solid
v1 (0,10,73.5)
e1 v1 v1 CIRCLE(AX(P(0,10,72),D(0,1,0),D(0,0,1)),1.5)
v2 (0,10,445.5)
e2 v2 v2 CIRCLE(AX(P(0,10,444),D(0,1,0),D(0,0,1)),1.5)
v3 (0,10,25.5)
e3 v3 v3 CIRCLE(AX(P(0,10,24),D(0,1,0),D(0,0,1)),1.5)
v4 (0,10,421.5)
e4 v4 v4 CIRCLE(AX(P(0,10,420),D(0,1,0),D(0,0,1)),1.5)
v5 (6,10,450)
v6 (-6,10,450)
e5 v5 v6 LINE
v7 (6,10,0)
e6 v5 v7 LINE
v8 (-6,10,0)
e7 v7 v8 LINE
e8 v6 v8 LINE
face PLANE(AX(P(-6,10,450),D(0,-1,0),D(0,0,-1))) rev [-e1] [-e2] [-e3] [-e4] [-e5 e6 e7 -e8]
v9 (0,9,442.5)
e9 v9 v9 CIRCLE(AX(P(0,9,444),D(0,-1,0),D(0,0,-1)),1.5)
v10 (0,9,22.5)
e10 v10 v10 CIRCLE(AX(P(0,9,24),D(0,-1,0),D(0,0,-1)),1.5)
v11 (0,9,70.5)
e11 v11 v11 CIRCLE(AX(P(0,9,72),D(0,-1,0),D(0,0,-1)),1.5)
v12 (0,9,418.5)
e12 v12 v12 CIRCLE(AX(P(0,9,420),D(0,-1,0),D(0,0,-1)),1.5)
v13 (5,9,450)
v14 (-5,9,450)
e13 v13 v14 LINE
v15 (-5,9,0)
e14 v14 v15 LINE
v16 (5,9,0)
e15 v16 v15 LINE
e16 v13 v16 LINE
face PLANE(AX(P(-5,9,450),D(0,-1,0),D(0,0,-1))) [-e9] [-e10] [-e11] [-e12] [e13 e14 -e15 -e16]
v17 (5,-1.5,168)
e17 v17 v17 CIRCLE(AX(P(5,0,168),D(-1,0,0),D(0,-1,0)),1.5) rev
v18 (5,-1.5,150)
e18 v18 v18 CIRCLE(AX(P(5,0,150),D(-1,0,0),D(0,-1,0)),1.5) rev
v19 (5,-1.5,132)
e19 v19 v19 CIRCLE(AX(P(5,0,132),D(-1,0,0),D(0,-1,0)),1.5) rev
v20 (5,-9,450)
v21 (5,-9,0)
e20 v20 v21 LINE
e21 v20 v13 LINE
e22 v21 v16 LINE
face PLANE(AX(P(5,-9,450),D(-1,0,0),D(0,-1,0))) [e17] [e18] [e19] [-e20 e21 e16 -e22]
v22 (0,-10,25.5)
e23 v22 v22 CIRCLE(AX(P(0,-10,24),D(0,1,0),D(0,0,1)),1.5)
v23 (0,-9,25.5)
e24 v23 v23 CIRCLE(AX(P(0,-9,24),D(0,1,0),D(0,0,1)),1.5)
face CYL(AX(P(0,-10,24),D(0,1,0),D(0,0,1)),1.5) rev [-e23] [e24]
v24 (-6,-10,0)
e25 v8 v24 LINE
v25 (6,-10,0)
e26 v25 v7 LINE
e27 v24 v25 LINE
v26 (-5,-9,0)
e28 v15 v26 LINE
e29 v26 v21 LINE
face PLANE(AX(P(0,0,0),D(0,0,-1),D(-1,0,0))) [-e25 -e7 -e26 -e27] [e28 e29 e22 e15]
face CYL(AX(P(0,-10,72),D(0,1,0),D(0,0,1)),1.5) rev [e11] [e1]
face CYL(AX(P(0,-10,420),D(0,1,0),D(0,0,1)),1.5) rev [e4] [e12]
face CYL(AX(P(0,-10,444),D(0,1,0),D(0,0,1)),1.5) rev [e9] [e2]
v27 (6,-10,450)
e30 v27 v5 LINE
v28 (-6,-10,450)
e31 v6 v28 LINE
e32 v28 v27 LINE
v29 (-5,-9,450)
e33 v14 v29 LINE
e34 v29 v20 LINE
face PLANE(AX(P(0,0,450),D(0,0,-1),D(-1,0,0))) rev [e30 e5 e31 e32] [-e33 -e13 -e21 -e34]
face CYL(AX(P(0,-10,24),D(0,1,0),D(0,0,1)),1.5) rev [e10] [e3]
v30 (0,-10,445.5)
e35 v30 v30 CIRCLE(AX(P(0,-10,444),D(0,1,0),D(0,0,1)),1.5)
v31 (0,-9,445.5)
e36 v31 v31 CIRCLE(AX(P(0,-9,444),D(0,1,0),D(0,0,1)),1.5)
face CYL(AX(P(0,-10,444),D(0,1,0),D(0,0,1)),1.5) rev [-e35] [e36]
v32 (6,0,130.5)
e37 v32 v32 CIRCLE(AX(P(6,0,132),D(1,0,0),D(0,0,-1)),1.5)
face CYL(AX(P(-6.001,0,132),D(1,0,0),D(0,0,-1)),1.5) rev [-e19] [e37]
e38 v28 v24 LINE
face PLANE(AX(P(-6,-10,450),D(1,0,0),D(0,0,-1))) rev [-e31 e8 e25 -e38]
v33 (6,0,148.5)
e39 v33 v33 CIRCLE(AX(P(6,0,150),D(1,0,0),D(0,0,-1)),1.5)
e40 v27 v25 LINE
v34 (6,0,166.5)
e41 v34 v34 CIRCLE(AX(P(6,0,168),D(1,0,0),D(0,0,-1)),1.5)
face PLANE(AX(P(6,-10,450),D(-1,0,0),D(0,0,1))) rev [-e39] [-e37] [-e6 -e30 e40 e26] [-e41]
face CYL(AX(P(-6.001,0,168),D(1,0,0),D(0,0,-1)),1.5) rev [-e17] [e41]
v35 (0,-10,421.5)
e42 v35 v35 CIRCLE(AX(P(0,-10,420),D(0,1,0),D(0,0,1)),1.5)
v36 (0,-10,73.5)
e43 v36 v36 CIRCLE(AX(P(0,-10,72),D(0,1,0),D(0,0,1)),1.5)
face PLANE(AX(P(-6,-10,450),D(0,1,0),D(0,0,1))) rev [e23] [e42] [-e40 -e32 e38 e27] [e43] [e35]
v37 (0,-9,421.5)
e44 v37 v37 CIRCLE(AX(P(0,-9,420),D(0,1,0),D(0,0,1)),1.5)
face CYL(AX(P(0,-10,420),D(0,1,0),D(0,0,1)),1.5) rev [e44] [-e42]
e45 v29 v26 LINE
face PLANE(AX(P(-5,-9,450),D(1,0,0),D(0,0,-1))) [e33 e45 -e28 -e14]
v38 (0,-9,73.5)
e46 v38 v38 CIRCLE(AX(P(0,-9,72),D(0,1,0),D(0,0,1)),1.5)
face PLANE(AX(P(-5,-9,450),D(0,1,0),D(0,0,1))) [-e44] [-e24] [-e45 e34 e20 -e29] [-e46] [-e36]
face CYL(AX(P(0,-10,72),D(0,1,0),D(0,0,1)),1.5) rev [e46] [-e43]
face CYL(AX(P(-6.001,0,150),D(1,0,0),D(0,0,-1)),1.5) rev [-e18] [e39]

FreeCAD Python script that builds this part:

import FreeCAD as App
import Part
import Sketcher

V = App.Vector
Q = App.Units.Quantity

doc = App.newDocument("Part")
body = doc.addObject("PartDesign::Body", "Body")

# Sketch on XY plane
sketch1 = body.newObject("Sketcher::SketchObject", "Sketch")
sketch1.AttachmentSupport = (doc.getObject("XY_Plane"), [""])
sketch1.MapMode = "FlatFace"
sketch1.addGeometry([
    Part.LineSegment(V(-6, 10, 0), V(-6, -10, 0)),  # 0
    Part.LineSegment(V(-6, -10, 0), V(6, -10, 0)),  # 1
    Part.LineSegment(V(6, -10, 0), V(6, 10, 0)),  # 2
    Part.LineSegment(V(6, 10, 0), V(-6, 10, 0)),  # 3
    Part.LineSegment(V(5, -9, 0), V(-5, -9, 0)),  # 4
    Part.LineSegment(V(-5, -9, 0), V(-5, 9, 0)),  # 5
    Part.LineSegment(V(-5, 9, 0), V(5, 9, 0)),  # 6
    Part.LineSegment(V(5, 9, 0), V(5, -9, 0)),  # 7
], False)
sketch1.addConstraint([
    Sketcher.Constraint("Coincident", 0, 2, 1, 1),
    Sketcher.Constraint("Coincident", 1, 2, 2, 1),
    Sketcher.Constraint("Coincident", 2, 2, 3, 1),
    Sketcher.Constraint("Coincident", 3, 2, 0, 1),
    Sketcher.Constraint("Coincident", 4, 2, 5, 1),
    Sketcher.Constraint("Coincident", 5, 2, 6, 1),
    Sketcher.Constraint("Coincident", 6, 2, 7, 1),
    Sketcher.Constraint("Coincident", 7, 2, 4, 1),
    Sketcher.Constraint("Vertical", 0),
    Sketcher.Constraint("Horizontal", 1),
    Sketcher.Constraint("Vertical", 2),
    Sketcher.Constraint("Horizontal", 3),
    Sketcher.Constraint("Horizontal", 4),
    Sketcher.Constraint("Vertical", 5),
    Sketcher.Constraint("Horizontal", 6),
    Sketcher.Constraint("Vertical", 7),
    Sketcher.Constraint("Symmetric", 0, 2, 2, 2, -1, 1),
    Sketcher.Constraint("Symmetric", 4, 2, 6, 2, -1, 1),
    Sketcher.Constraint("DistanceX", 1, 1, 1, 2, Q("12 mm")),
    Sketcher.Constraint("DistanceX", 4, 2, 4, 1, Q("10 mm")),
    Sketcher.Constraint("DistanceY", 0, 2, 0, 1, Q("20 mm")),
    Sketcher.Constraint("DistanceY", 5, 1, 5, 2, Q("18 mm")),
])
pad1 = body.newObject("PartDesign::Pad", "Pad")
pad1.Profile = sketch1
pad1.Length = 450

# Sketch on YZ plane
sketch2 = body.newObject("Sketcher::SketchObject", "Sketch001")
sketch2.AttachmentSupport = (doc.getObject("YZ_Plane"), [""])
sketch2.MapMode = "FlatFace"
sketch2.AttachmentOffset = App.Placement(V(0, 0, 6), App.Rotation())
sketch2.addGeometry(Part.Circle(V(0, 168, 0), V(0, 0, 1), 1.5), False)
sketch2.addConstraint([
    Sketcher.Constraint("PointOnObject", 0, 3, -2),
    Sketcher.Constraint("Diameter", 0, Q("3 mm")),
    Sketcher.Constraint("DistanceY", -1, 1, 0, 3, Q("168 mm")),
])
pocket1 = body.newObject("PartDesign::Pocket", "Pocket")
pocket1.Profile = sketch2
pocket1.Type = "UpToFirst"

# Sketch on YZ plane
sketch3 = body.newObject("Sketcher::SketchObject", "Sketch002")
sketch3.AttachmentSupport = (doc.getObject("YZ_Plane"), [""])
sketch3.MapMode = "FlatFace"
sketch3.AttachmentOffset = App.Placement(V(0, 0, 6), App.Rotation())
sketch3.addGeometry(Part.Circle(V(0, 150, 0), V(0, 0, 1), 1.5), False)
sketch3.addConstraint([
    Sketcher.Constraint("PointOnObject", 0, 3, -2),
    Sketcher.Constraint("Diameter", 0, Q("3 mm")),
    Sketcher.Constraint("DistanceY", -1, 1, 0, 3, Q("150 mm")),
])
pocket2 = body.newObject("PartDesign::Pocket", "Pocket001")
pocket2.Profile = sketch3
pocket2.Type = "UpToFirst"

# Sketch on YZ plane
sketch4 = body.newObject("Sketcher::SketchObject", "Sketch003")
sketch4.AttachmentSupport = (doc.getObject("YZ_Plane"), [""])
sketch4.MapMode = "FlatFace"
sketch4.AttachmentOffset = App.Placement(V(0, 0, 6), App.Rotation())
sketch4.addGeometry(Part.Circle(V(0, 132, 0), V(0, 0, 1), 1.5), False)
sketch4.addConstraint([
    Sketcher.Constraint("PointOnObject", 0, 3, -2),
    Sketcher.Constraint("Diameter", 0, Q("3 mm")),
    Sketcher.Constraint("DistanceY", -1, 1, 0, 3, Q("132 mm")),
])
pocket3 = body.newObject("PartDesign::Pocket", "Pocket002")
pocket3.Profile = sketch4
pocket3.Type = "UpToFirst"

# Sketch on XZ plane
sketch5 = body.newObject("Sketcher::SketchObject", "Sketch004")
sketch5.AttachmentSupport = (doc.getObject("XZ_Plane"), [""])
sketch5.MapMode = "FlatFace"
sketch5.AttachmentOffset = App.Placement(V(0, 0, -10), App.Rotation())
sketch5.addGeometry([
    Part.Circle(V(0, 444, 0), V(0, 0, 1), 1.5),
    Part.Circle(V(0, 420, 0), V(0, 0, 1), 1.5),
    Part.Circle(V(0, 24, 0), V(0, 0, 1), 1.5),
    Part.Circle(V(0, 72, 0), V(0, 0, 1), 1.5),
], False)
sketch5.addConstraint([
    Sketcher.Constraint("Equal", 0, 1),
    Sketcher.Constraint("Equal", 1, 2),
    Sketcher.Constraint("Equal", 2, 3),
    Sketcher.Constraint("PointOnObject", 0, 3, -2),
    Sketcher.Constraint("PointOnObject", 1, 3, -2),
    Sketcher.Constraint("PointOnObject", 2, 3, -2),
    Sketcher.Constraint("PointOnObject", 3, 3, -2),
    Sketcher.Constraint("Diameter", 0, Q("3 mm")),
    Sketcher.Constraint("DistanceY", -1, 1, 0, 3, Q("444 mm")),
    Sketcher.Constraint("DistanceY", -1, 1, 1, 3, Q("420 mm")),
    Sketcher.Constraint("DistanceY", -1, 1, 2, 3, Q("24 mm")),
    Sketcher.Constraint("DistanceY", -1, 1, 3, 3, Q("72 mm")),
])
pocket4 = body.newObject("PartDesign::Pocket", "Pocket003")
pocket4.Profile = sketch5
pocket4.Type = "ThroughAll"
pocket4.Reversed = True

doc.recompute()
